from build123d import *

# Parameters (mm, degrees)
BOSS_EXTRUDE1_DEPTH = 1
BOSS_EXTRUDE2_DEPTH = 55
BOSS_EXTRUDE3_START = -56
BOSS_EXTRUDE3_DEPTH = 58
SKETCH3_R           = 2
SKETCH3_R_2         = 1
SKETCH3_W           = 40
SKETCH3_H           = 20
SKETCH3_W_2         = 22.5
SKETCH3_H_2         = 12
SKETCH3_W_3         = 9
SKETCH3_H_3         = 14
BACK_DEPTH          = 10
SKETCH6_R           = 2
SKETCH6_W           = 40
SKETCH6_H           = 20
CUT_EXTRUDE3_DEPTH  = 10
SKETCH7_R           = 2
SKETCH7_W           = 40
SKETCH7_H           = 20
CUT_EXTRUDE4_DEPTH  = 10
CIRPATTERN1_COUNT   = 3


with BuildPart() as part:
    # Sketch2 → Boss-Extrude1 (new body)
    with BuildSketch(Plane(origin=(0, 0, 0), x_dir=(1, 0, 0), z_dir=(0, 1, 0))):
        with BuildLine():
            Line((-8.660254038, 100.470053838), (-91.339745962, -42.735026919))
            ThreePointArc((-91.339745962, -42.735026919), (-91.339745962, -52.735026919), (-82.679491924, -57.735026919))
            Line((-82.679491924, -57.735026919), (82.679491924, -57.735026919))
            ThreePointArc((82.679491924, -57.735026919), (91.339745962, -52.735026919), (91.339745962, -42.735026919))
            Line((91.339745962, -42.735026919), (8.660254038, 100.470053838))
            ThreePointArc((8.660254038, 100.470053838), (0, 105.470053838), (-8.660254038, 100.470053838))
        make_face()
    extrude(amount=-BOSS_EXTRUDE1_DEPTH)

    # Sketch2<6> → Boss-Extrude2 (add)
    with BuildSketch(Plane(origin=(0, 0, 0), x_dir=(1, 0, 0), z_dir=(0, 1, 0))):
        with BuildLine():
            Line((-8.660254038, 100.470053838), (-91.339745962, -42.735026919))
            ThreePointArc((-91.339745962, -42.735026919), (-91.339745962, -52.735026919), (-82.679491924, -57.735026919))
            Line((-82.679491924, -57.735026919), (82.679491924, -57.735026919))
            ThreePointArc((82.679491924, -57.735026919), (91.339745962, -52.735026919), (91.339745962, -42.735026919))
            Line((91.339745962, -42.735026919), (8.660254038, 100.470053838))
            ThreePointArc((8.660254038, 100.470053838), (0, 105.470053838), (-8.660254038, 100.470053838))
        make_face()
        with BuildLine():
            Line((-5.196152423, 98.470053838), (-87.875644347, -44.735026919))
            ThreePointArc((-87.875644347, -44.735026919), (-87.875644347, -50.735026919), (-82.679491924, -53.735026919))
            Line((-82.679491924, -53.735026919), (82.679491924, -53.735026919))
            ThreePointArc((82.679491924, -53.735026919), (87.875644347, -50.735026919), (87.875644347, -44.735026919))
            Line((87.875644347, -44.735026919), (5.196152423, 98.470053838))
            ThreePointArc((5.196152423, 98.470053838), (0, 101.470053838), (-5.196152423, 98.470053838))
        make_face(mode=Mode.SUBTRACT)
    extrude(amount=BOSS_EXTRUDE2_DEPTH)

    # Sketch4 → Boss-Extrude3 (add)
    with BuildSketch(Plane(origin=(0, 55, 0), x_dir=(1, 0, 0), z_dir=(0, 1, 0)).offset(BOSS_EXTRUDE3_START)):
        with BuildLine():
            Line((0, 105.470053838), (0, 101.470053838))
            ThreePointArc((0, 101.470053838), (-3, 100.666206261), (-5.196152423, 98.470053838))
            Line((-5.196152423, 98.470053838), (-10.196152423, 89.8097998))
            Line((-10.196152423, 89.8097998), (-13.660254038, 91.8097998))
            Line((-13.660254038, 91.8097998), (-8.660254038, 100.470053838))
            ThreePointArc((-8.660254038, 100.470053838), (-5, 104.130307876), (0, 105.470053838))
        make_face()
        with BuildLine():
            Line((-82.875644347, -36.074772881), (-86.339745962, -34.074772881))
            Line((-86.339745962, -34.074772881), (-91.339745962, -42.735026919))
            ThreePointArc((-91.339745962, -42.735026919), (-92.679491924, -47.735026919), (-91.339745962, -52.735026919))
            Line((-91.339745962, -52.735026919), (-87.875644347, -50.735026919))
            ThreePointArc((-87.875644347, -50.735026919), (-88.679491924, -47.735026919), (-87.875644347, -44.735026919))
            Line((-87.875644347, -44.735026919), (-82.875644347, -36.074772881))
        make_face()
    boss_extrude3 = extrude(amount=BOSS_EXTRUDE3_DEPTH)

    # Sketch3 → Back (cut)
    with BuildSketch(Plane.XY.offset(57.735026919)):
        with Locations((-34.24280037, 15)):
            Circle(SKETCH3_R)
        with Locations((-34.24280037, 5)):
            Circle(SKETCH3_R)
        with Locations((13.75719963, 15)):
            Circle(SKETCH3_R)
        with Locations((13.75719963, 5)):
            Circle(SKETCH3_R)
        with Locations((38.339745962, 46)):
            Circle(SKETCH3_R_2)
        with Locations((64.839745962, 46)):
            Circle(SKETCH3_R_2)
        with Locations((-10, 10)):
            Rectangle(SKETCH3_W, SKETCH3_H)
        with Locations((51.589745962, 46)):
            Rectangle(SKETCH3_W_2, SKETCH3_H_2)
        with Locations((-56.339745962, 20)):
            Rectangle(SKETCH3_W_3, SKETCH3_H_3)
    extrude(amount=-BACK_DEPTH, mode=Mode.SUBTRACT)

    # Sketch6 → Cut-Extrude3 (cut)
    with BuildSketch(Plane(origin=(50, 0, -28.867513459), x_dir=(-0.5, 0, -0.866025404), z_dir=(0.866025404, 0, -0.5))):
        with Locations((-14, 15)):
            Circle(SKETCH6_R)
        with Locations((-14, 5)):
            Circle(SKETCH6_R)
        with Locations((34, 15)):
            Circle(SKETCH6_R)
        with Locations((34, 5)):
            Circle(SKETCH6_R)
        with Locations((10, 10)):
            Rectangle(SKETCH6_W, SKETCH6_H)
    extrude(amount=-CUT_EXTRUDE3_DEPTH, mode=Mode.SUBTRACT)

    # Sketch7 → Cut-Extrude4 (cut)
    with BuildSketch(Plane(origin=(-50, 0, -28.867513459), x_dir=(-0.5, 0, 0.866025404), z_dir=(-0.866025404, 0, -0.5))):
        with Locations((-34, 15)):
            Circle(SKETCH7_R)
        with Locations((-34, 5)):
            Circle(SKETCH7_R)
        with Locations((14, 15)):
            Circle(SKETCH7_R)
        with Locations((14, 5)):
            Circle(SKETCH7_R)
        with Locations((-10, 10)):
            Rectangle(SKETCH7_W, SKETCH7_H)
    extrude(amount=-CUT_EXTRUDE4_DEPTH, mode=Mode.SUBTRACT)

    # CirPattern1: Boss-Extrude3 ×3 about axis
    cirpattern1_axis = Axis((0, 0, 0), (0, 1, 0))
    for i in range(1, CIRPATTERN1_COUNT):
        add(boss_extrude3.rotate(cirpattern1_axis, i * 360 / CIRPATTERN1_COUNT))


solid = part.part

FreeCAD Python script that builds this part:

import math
import FreeCAD as App
import Part
import Sketcher
Q = App.Units.Quantity


def add_polygon(sketch, points):
    """Adds a closed chain of lines whose ends are joined by coincident constraints."""
    first, n = sketch.GeometryCount, len(points)
    for a, b in zip(points, points[1:] + points[:1]):
        sketch.addGeometry(Part.LineSegment(App.Vector(*a, 0), App.Vector(*b, 0)), False)
    for i in range(n):
        sketch.addConstraint(Sketcher.Constraint("Coincident", first + i, 2, first + (i + 1) % n, 1))

doc = App.newDocument("Part")
params = doc.addObject("Spreadsheet::Sheet", "Params")
for row, (alias, value) in enumerate([
    ("sketch1_radius", "10 mm"),
    ("pad1_length", "1 mm"),
    ("sketch2_radius", "10 mm"),
    ("sketch2_radius2", "6 mm"),
    ("pad2_length", "55 mm"),
    ("sketch3_radius", "10 mm"),
    ("sketch3_radius2", "6 mm"),
    ("sketch3_length", "10 mm"),
    ("pad3_length", "58 mm"),
    ("sketch4_diameter", "4 mm"),
    ("sketch4_diameter2", "2 mm"),
    ("sketch4_width", "40 mm"),
    ("sketch4_width2", "9 mm"),
    ("sketch4_height", "20 mm"),
    ("pocket1_length", "10 mm"),
    ("sketch5_diameter", "4 mm"),
    ("sketch5_width", "40 mm"),
    ("sketch5_height", "20 mm"),
    ("pocket2_length", "10 mm"),
    ("sketch6_diameter", "4 mm"),
    ("sketch6_width", "40 mm"),
    ("sketch6_height", "20 mm"),
    ("pocket3_length", "10 mm"),
], start=1):
    params.set(f"A{row}", alias)
    params.set(f"B{row}", "=" + value)
    params.setAlias(f"B{row}", alias)

body = doc.addObject("PartDesign::Body", "Body")

# Sketch on XZ plane
sketch1 = body.newObject("Sketcher::SketchObject", "Sketch")
sketch1.AttachmentSupport = (doc.getObject("XZ_Plane"), [""])
sketch1.MapMode = "FlatFace"
sketch1.addGeometry([
    Part.LineSegment(App.Vector(-9, -100, 0), App.Vector(-91, 43, 0)),  # 0
    Part.ArcOfCircle(Part.Circle(App.Vector(-83, 48, 0), App.Vector(0, 0, 1), 10), math.radians(90), math.radians(210)),  # 1
    Part.LineSegment(App.Vector(-83, 58, 0), App.Vector(83, 58, 0)),  # 2
    Part.ArcOfCircle(Part.Circle(App.Vector(83, 48, 0), App.Vector(0, 0, 1), 10), math.radians(-30), math.radians(90)),  # 3
    Part.LineSegment(App.Vector(91, 43, 0), App.Vector(9, -100, 0)),  # 4
    Part.ArcOfCircle(Part.Circle(App.Vector(0, -95, 0), App.Vector(0, 0, 1), 10), math.radians(-150), math.radians(-30)),  # 5
], False)
sketch1.addConstraint([
    Sketcher.Constraint("Tangent", 0, 2, 1, 2),
    Sketcher.Constraint("Tangent", 1, 1, 2, 1),
    Sketcher.Constraint("Tangent", 2, 2, 3, 2),
    Sketcher.Constraint("Tangent", 3, 1, 4, 1),
    Sketcher.Constraint("Tangent", 4, 2, 5, 2),
    Sketcher.Constraint("Tangent", 5, 1, 0, 1),
    Sketcher.Constraint("Horizontal", 2),
    Sketcher.Constraint("Equal", 1, 3),
    Sketcher.Constraint("Equal", 3, 5),
    Sketcher.Constraint("Symmetric", 0, 2, 3, 1, -2),
    Sketcher.Constraint("Radius", 1, 10.0),
    Sketcher.Constraint("Angle", 0, Q("120 deg")),
    Sketcher.Constraint("DistanceX", 2, 1, 2, 2, 165.358984),
    Sketcher.Constraint("DistanceY", -1, 1, 1, 3, 47.735027),
])
sketch1.setExpression("Constraints[10]", "Params.sketch1_radius")
pad1 = body.newObject("PartDesign::Pad", "Pad")
pad1.Profile = sketch1
pad1.setExpression("Length", "Params.pad1_length")

# Sketch on XZ plane
sketch2 = body.newObject("Sketcher::SketchObject", "Sketch001")
sketch2.AttachmentSupport = (doc.getObject("XZ_Plane"), [""])
sketch2.MapMode = "FlatFace"
sketch2.addGeometry([
    Part.LineSegment(App.Vector(-9, -100, 0), App.Vector(-91, 43, 0)),  # 0
    Part.ArcOfCircle(Part.Circle(App.Vector(-83, 48, 0), App.Vector(0, 0, 1), 10), math.radians(90), math.radians(210)),  # 1
    Part.LineSegment(App.Vector(-83, 58, 0), App.Vector(83, 58, 0)),  # 2
    Part.ArcOfCircle(Part.Circle(App.Vector(83, 48, 0), App.Vector(0, 0, 1), 10), math.radians(-30), math.radians(90)),  # 3
    Part.LineSegment(App.Vector(91, 43, 0), App.Vector(9, -100, 0)),  # 4
    Part.ArcOfCircle(Part.Circle(App.Vector(0, -95, 0), App.Vector(0, 0, 1), 10), math.radians(-150), math.radians(-30)),  # 5
    Part.LineSegment(App.Vector(-88, 45, 0), App.Vector(-5, -98, 0)),  # 6
    Part.ArcOfCircle(Part.Circle(App.Vector(0, -95, 0), App.Vector(0, 0, 1), 6), math.radians(-150), math.radians(-30)),  # 7
    Part.LineSegment(App.Vector(5, -98, 0), App.Vector(88, 45, 0)),  # 8
    Part.ArcOfCircle(Part.Circle(App.Vector(83, 48, 0), App.Vector(0, 0, 1), 6), math.radians(-30), math.radians(90)),  # 9
    Part.LineSegment(App.Vector(83, 54, 0), App.Vector(-83, 54, 0)),  # 10
    Part.ArcOfCircle(Part.Circle(App.Vector(-83, 48, 0), App.Vector(0, 0, 1), 6), math.radians(90), math.radians(210)),  # 11
], False)
sketch2.addConstraint([
    Sketcher.Constraint("Tangent", 0, 2, 1, 2),
    Sketcher.Constraint("Tangent", 1, 1, 2, 1),
    Sketcher.Constraint("Tangent", 2, 2, 3, 2),
    Sketcher.Constraint("Tangent", 3, 1, 4, 1),
    Sketcher.Constraint("Tangent", 4, 2, 5, 2),
    Sketcher.Constraint("Tangent", 5, 1, 0, 1),
    Sketcher.Constraint("Tangent", 6, 2, 7, 1),
    Sketcher.Constraint("Tangent", 7, 2, 8, 1),
    Sketcher.Constraint("Tangent", 8, 2, 9, 1),
    Sketcher.Constraint("Tangent", 9, 2, 10, 1),
    Sketcher.Constraint("Tangent", 10, 2, 11, 1),
    Sketcher.Constraint("Tangent", 11, 2, 6, 1),
    Sketcher.Constraint("Horizontal", 2),
    Sketcher.Constraint("Horizontal", 10),
    Sketcher.Constraint("Coincident", 7, 3, 5, 3),
    Sketcher.Constraint("Coincident", 9, 3, 3, 3),
    Sketcher.Constraint("Coincident", 11, 3, 1, 3),
    Sketcher.Constraint("Equal", 1, 3),
    Sketcher.Constraint("Equal", 3, 5),
    Sketcher.Constraint("Equal", 7, 9),
    Sketcher.Constraint("Symmetric", 0, 2, 3, 1, -2),
    Sketcher.Constraint("Radius", 1, 10.0),
    Sketcher.Constraint("Radius", 7, 6.0),
    Sketcher.Constraint("Angle", 0, Q("120 deg")),
    Sketcher.Constraint("DistanceX", 2, 1, 2, 2, 165.358984),
    Sketcher.Constraint("DistanceY", -1, 1, 1, 3, 47.735027),
])
sketch2.setExpression("Constraints[21]", "Params.sketch2_radius")
sketch2.setExpression("Constraints[22]", "Params.sketch2_radius2")
pad2 = body.newObject("PartDesign::Pad", "Pad001")
pad2.Profile = sketch2
pad2.setExpression("Length", "Params.pad2_length")
pad2.Reversed = True

# Sketch on XZ plane
sketch3 = body.newObject("Sketcher::SketchObject", "Sketch002")
sketch3.AttachmentSupport = (doc.getObject("XZ_Plane"), [""])
sketch3.MapMode = "FlatFace"
sketch3.AttachmentOffset = App.Placement(App.Vector(0, 0, 1), App.Rotation())
sketch3.addGeometry([
    Part.LineSegment(App.Vector(0, -101.5, 0), App.Vector(0, -105.5, 0)),  # 0
    Part.ArcOfCircle(Part.Circle(App.Vector(0, -95.5, 0), App.Vector(0, 0, 1), 10), math.radians(-150), math.radians(-90)),  # 1
    Part.LineSegment(App.Vector(-8.7, -100.5, 0), App.Vector(-13.7, -91.8, 0)),  # 2
    Part.LineSegment(App.Vector(-13.7, -91.8, 0), App.Vector(-10.2, -89.8, 0)),  # 3
    Part.LineSegment(App.Vector(-10.2, -89.8, 0), App.Vector(-5.2, -98.5, 0)),  # 4
    Part.ArcOfCircle(Part.Circle(App.Vector(0, -95.5, 0), App.Vector(0, 0, 1), 6), math.radians(-150), math.radians(-90)),  # 5
    Part.LineSegment(App.Vector(-82.9, 36.1, 0), App.Vector(-86.3, 34.1, 0)),  # 6
    Part.LineSegment(App.Vector(-86.3, 34.1, 0), App.Vector(-91.3, 42.7, 0)),  # 7
    Part.ArcOfCircle(Part.Circle(App.Vector(-82.7, 47.7, 0), App.Vector(0, 0, 1), 10), math.radians(150), math.radians(210)),  # 8
    Part.LineSegment(App.Vector(-91.3, 52.7, 0), App.Vector(-87.9, 50.7, 0)),  # 9
    Part.ArcOfCircle(Part.Circle(App.Vector(-82.7, 47.7, 0), App.Vector(0, 0, 1), 6), math.radians(150), math.radians(210)),  # 10
    Part.LineSegment(App.Vector(-87.9, 44.7, 0), App.Vector(-82.9, 36.1, 0)),  # 11
], False)
sketch3.addConstraint([
    Sketcher.Constraint("Coincident", 0, 2, 1, 2),
    Sketcher.Constraint("Tangent", 1, 1, 2, 1),
    Sketcher.Constraint("Coincident", 2, 2, 3, 1),
    Sketcher.Constraint("Coincident", 3, 2, 4, 1),
    Sketcher.Constraint("Tangent", 4, 2, 5, 1),
    Sketcher.Constraint("Coincident", 5, 2, 0, 1),
    Sketcher.Constraint("Coincident", 6, 2, 7, 1),
    Sketcher.Constraint("Tangent", 7, 2, 8, 2),
    Sketcher.Constraint("Coincident", 8, 1, 9, 1),
    Sketcher.Constraint("Coincident", 9, 2, 10, 1),
    Sketcher.Constraint("Tangent", 10, 2, 11, 1),
    Sketcher.Constraint("Coincident", 11, 2, 6, 1),
    Sketcher.Constraint("Vertical", 0),
    Sketcher.Constraint("Coincident", 5, 3, 1, 3),
    Sketcher.Constraint("Coincident", 10, 3, 8, 3),
    Sketcher.Constraint("Equal", 1, 8),
    Sketcher.Constraint("Equal", 5, 10),
    Sketcher.Constraint("PointOnObject", 1, 3, -2),
    Sketcher.Constraint("PointOnObject", 0, 2, -2),
    Sketcher.Constraint("Perpendicular", 2, 3),
    Sketcher.Constraint("Perpendicular", 3, 4),
    Sketcher.Constraint("Perpendicular", 4, 6),
    Sketcher.Constraint("Perpendicular", 6, 7),
    Sketcher.Constraint("Parallel", 7, 11),
    Sketcher.Constraint("Vertical", 7, 2, 8, 1),
    Sketcher.Constraint("Vertical", 9, 2, 10, 2),
    Sketcher.Constraint("Equal", 4, 7),
    Sketcher.Constraint("Radius", 1, 10.0),
    Sketcher.Constraint("Radius", 5, 6.0),
    Sketcher.Constraint("Angle", 2, Q("120 deg")),
    Sketcher.Constraint("Distance", 2, 10.0),
    Sketcher.Constraint("DistanceY", 2, 2, -1, 1, 91.8098),
    Sketcher.Constraint("DistanceX", 8, 3, -1, 1, 82.679492),
    Sketcher.Constraint("DistanceY", 1, 3, 8, 3, 143.205081),
])
sketch3.setExpression("Constraints[27]", "Params.sketch3_radius")
sketch3.setExpression("Constraints[28]", "Params.sketch3_radius2")
sketch3.setExpression("Constraints[30]", "Params.sketch3_length")
pad3 = body.newObject("PartDesign::Pad", "Pad002")
pad3.Profile = sketch3
pad3.setExpression("Length", "Params.pad3_length")
pad3.Reversed = True

# Sketch on XY plane
sketch4 = body.newObject("Sketcher::SketchObject", "Sketch003")
sketch4.AttachmentSupport = (doc.getObject("XY_Plane"), [""])
sketch4.MapMode = "FlatFace"
sketch4.AttachmentOffset = App.Placement(App.Vector(0, 0, 57.735027), App.Rotation())
sketch4.addGeometry(Part.Circle(App.Vector(-34.2, 15, 0), App.Vector(0, 0, 1), 2), False)  # 0
sketch4.addGeometry(Part.Circle(App.Vector(-34.2, 5, 0), App.Vector(0, 0, 1), 2), False)  # 1
sketch4.addGeometry(Part.Circle(App.Vector(13.8, 15, 0), App.Vector(0, 0, 1), 2), False)  # 2
sketch4.addGeometry(Part.Circle(App.Vector(13.8, 5, 0), App.Vector(0, 0, 1), 2), False)  # 3
sketch4.addGeometry(Part.Circle(App.Vector(38.3, 46, 0), App.Vector(0, 0, 1), 1), False)  # 4
sketch4.addGeometry(Part.Circle(App.Vector(64.8, 46, 0), App.Vector(0, 0, 1), 1), False)  # 5
add_polygon(sketch4, [(-30, 20), (-30, 0), (10, 0), (10, 20)])  # lines 6-9
add_polygon(sketch4, [(40.3, 52), (40.3, 40), (62.8, 40), (62.8, 52)])  # lines 10-13
add_polygon(sketch4, [(-60.8, 27), (-60.8, 13), (-51.8, 13), (-51.8, 27)])  # lines 14-17
sketch4.addConstraint([
    Sketcher.Constraint("Vertical", 6),
    Sketcher.Constraint("Horizontal", 7),
    Sketcher.Constraint("Vertical", 8),
    Sketcher.Constraint("Horizontal", 9),
    Sketcher.Constraint("Vertical", 10),
    Sketcher.Constraint("Horizontal", 11),
    Sketcher.Constraint("Vertical", 12),
    Sketcher.Constraint("Horizontal", 13),
    Sketcher.Constraint("Vertical", 14),
    Sketcher.Constraint("Horizontal", 15),
    Sketcher.Constraint("Vertical", 16),
    Sketcher.Constraint("Horizontal", 17),
    Sketcher.Constraint("Equal", 0, 1),
    Sketcher.Constraint("Equal", 1, 2),
    Sketcher.Constraint("Equal", 2, 3),
    Sketcher.Constraint("Equal", 4, 5),
    Sketcher.Constraint("PointOnObject", 6, 2, -1),
    Sketcher.Constraint("Horizontal", 0, 3, 2, 3),
    Sketcher.Constraint("Horizontal", 1, 3, 3, 3),
    Sketcher.Constraint("Horizontal", 4, 3, 5, 3),
    Sketcher.Constraint("Vertical", 0, 3, 1, 3),
    Sketcher.Constraint("Vertical", 2, 3, 3, 3),
    Sketcher.Constraint("Diameter", 0, 4.0),
    Sketcher.Constraint("Diameter", 4, 2.0),
    Sketcher.Constraint("DistanceX", 7, 1, 7, 2, 40.0),
    Sketcher.Constraint("DistanceX", 15, 1, 15, 2, 9.0),
    Sketcher.Constraint("DistanceY", 6, 2, 6, 1, 20.0),
    Sketcher.Constraint("DistanceY", 10, 2, 10, 1, 12.0),
    Sketcher.Constraint("DistanceY", 14, 2, 14, 1, 14.0),
    Sketcher.Constraint("DistanceX", 11, 1, 11, 2, 22.5),
    Sketcher.Constraint("DistanceY", -1, 1, 0, 3, 15.0),
    Sketcher.Constraint("DistanceY", -1, 1, 1, 3, 5.0),
    Sketcher.Constraint("DistanceY", -1, 1, 4, 3, 46.0),
    Sketcher.Constraint("DistanceX", 6, 2, -1, 1, 30.0),
    Sketcher.Constraint("DistanceY", -1, 1, 10, 2, 40.0),
    Sketcher.Constraint("DistanceY", -1, 1, 14, 2, 13.0),
    Sketcher.Constraint("DistanceX", 0, 3, 2, 3, 48.0),
    Sketcher.Constraint("DistanceX", 4, 3, 10, 2, 2.0),
    Sketcher.Constraint("DistanceX", 11, 2, 5, 3, 2.0),
    Sketcher.Constraint("DistanceX", 0, 3, -1, 1, 34.2428),
    Sketcher.Constraint("DistanceX", -1, 1, 4, 3, 38.339746),
    Sketcher.Constraint("DistanceX", 14, 2, -1, 1, 60.839746),
])
sketch4.setExpression("Constraints[34]", "Params.sketch4_diameter")
sketch4.setExpression("Constraints[35]", "Params.sketch4_diameter2")
sketch4.setExpression("Constraints[36]", "Params.sketch4_width")
sketch4.setExpression("Constraints[37]", "Params.sketch4_width2")
sketch4.setExpression("Constraints[38]", "Params.sketch4_height")
pocket1 = body.newObject("PartDesign::Pocket", "Pocket")
pocket1.Profile = sketch4
pocket1.setExpression("Length", "Params.pocket1_length")

# Sketch on an angled plane
sketch5 = body.newObject("Sketcher::SketchObject", "Sketch004")
sketch5.Placement = App.Placement(App.Vector(50, 0, -28.867513), App.Rotation(App.Vector(-0.5, 0, -0.866025404), App.Vector(0, 1, 0), App.Vector(0.866025404, 0, -0.5), "ZXY"))
sketch5.addGeometry(Part.Circle(App.Vector(-14, 15, 0), App.Vector(0, 0, 1), 2), False)  # 0
sketch5.addGeometry(Part.Circle(App.Vector(-14, 5, 0), App.Vector(0, 0, 1), 2), False)  # 1
sketch5.addGeometry(Part.Circle(App.Vector(34, 15, 0), App.Vector(0, 0, 1), 2), False)  # 2
sketch5.addGeometry(Part.Circle(App.Vector(34, 5, 0), App.Vector(0, 0, 1), 2), False)  # 3
add_polygon(sketch5, [(-10, 20), (-10, 0), (30, 0), (30, 20)])  # lines 4-7
sketch5.addConstraint([
    Sketcher.Constraint("Vertical", 4),
    Sketcher.Constraint("Horizontal", 5),
    Sketcher.Constraint("Vertical", 6),
    Sketcher.Constraint("Horizontal", 7),
    Sketcher.Constraint("Equal", 0, 1),
    Sketcher.Constraint("Equal", 1, 2),
    Sketcher.Constraint("Equal", 2, 3),
    Sketcher.Constraint("PointOnObject", 4, 2, -1),
    Sketcher.Constraint("Horizontal", 0, 3, 2, 3),
    Sketcher.Constraint("Horizontal", 1, 3, 3, 3),
    Sketcher.Constraint("Vertical", 0, 3, 1, 3),
    Sketcher.Constraint("Vertical", 2, 3, 3, 3),
    Sketcher.Constraint("Diameter", 0, 4.0),
    Sketcher.Constraint("DistanceX", 5, 1, 5, 2, 40.0),
    Sketcher.Constraint("DistanceY", 4, 2, 4, 1, 20.0),
    Sketcher.Constraint("DistanceX", 0, 3, -1, 1, 14.0),
    Sketcher.Constraint("DistanceY", -1, 1, 0, 3, 15.0),
    Sketcher.Constraint("DistanceY", -1, 1, 1, 3, 5.0),
    Sketcher.Constraint("DistanceX", -1, 1, 2, 3, 34.0),
    Sketcher.Constraint("DistanceX", 4, 2, -1, 1, 10.0),
])
sketch5.setExpression("Constraints[16]", "Params.sketch5_diameter")
sketch5.setExpression("Constraints[17]", "Params.sketch5_width")
sketch5.setExpression("Constraints[18]", "Params.sketch5_height")
pocket2 = body.newObject("PartDesign::Pocket", "Pocket001")
pocket2.Profile = sketch5
pocket2.setExpression("Length", "Params.pocket2_length")

# Sketch on an angled plane
sketch6 = body.newObject("Sketcher::SketchObject", "Sketch005")
sketch6.Placement = App.Placement(App.Vector(-50, 0, -28.867513), App.Rotation(App.Vector(-0.5, 0, 0.866025404), App.Vector(0, 1, 0), App.Vector(-0.866025404, 0, -0.5), "ZXY"))
sketch6.addGeometry(Part.Circle(App.Vector(-34, 15, 0), App.Vector(0, 0, 1), 2), False)  # 0
sketch6.addGeometry(Part.Circle(App.Vector(-34, 5, 0), App.Vector(0, 0, 1), 2), False)  # 1
sketch6.addGeometry(Part.Circle(App.Vector(14, 15, 0), App.Vector(0, 0, 1), 2), False)  # 2
sketch6.addGeometry(Part.Circle(App.Vector(14, 5, 0), App.Vector(0, 0, 1), 2), False)  # 3
add_polygon(sketch6, [(-30, 20), (-30, 0), (10, 0), (10, 20)])  # lines 4-7
sketch6.addConstraint([
    Sketcher.Constraint("Vertical", 4),
    Sketcher.Constraint("Horizontal", 5),
    Sketcher.Constraint("Vertical", 6),
    Sketcher.Constraint("Horizontal", 7),
    Sketcher.Constraint("Equal", 0, 1),
    Sketcher.Constraint("Equal", 1, 2),
    Sketcher.Constraint("Equal", 2, 3),
    Sketcher.Constraint("PointOnObject", 4, 2, -1),
    Sketcher.Constraint("Horizontal", 0, 3, 2, 3),
    Sketcher.Constraint("Horizontal", 1, 3, 3, 3),
    Sketcher.Constraint("Vertical", 0, 3, 1, 3),
    Sketcher.Constraint("Vertical", 2, 3, 3, 3),
    Sketcher.Constraint("Diameter", 0, 4.0),
    Sketcher.Constraint("DistanceX", 5, 1, 5, 2, 40.0),
    Sketcher.Constraint("DistanceY", 4, 2, 4, 1, 20.0),
    Sketcher.Constraint("DistanceX", 0, 3, -1, 1, 34.0),
    Sketcher.Constraint("DistanceY", -1, 1, 0, 3, 15.0),
    Sketcher.Constraint("DistanceY", -1, 1, 1, 3, 5.0),
    Sketcher.Constraint("DistanceX", -1, 1, 2, 3, 14.0),
    Sketcher.Constraint("DistanceX", 4, 2, -1, 1, 30.0),
])
sketch6.setExpression("Constraints[16]", "Params.sketch6_diameter")
sketch6.setExpression("Constraints[17]", "Params.sketch6_width")
sketch6.setExpression("Constraints[18]", "Params.sketch6_height")
pocket3 = body.newObject("PartDesign::Pocket", "Pocket002")
pocket3.Profile = sketch6
pocket3.setExpression("Length", "Params.pocket3_length")
doc.recompute()

polarpattern = body.newObject("PartDesign::PolarPattern", "PolarPattern")
polarpattern.Originals = [pad3]
polarpattern.Axis = (doc.getObject("Y_Axis"), [""])
polarpattern.Angle = 360
polarpattern.Occurrences = 3
body.Tip = polarpattern

doc.recompute()
